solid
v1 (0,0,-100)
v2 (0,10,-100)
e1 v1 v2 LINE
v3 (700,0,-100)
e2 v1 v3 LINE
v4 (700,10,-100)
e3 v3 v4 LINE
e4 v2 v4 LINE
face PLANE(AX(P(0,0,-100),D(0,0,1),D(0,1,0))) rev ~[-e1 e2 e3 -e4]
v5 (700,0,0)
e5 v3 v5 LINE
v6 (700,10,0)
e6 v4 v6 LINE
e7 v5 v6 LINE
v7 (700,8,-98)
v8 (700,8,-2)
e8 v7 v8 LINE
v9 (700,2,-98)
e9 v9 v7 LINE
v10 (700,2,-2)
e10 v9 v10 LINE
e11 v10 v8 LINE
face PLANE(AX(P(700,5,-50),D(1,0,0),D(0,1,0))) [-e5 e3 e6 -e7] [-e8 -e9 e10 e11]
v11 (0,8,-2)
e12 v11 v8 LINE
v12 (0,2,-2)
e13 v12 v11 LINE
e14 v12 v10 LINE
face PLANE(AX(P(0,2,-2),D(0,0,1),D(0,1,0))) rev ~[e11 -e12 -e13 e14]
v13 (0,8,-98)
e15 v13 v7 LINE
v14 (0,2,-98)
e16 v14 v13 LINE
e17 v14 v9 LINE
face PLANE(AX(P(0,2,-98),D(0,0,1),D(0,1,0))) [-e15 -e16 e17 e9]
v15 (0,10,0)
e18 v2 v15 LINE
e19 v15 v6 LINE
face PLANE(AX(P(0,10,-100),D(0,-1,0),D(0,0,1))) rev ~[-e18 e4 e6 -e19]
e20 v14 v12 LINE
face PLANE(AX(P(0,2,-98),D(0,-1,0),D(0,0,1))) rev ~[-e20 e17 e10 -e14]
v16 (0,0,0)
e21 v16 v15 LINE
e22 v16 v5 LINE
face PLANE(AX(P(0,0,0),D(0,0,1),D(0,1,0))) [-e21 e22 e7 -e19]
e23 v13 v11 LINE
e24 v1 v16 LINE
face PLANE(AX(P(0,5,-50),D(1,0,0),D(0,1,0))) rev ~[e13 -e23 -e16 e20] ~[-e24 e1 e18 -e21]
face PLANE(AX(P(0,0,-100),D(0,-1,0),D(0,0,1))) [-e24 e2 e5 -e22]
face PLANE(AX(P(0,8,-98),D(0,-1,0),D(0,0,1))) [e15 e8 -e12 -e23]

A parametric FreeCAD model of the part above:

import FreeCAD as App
import Part
import Sketcher

V = App.Vector

doc = App.newDocument("Part")
body = doc.addObject("PartDesign::Body", "Body")

sketch1 = body.newObject("Sketcher::SketchObject", "Sketch")
sketch1.AttachmentSupport = (doc.getObject("YZ_Plane"), [""])
sketch1.MapMode = "FlatFace"
sketch1.addGeometry(Part.LineSegment(V(0, 0, 0), V(0, -100, 0)), False)
sketch1.addGeometry(Part.LineSegment(V(0, -100, 0), V(10, -100, 0)), False)
sketch1.addGeometry(Part.LineSegment(V(10, -100, 0), V(10, 0, 0)), False)
sketch1.addGeometry(Part.LineSegment(V(10, 0, 0), V(0, 0, 0)), False)
sketch1.addGeometry(Part.LineSegment(V(8, -98, 0), V(2, -98, 0)), False)
sketch1.addGeometry(Part.LineSegment(V(2, -98, 0), V(2, -2, 0)), False)
sketch1.addGeometry(Part.LineSegment(V(2, -2, 0), V(8, -2, 0)), False)
sketch1.addGeometry(Part.LineSegment(V(8, -2, 0), V(8, -98, 0)), False)
sketch1.addConstraint(Sketcher.Constraint("Coincident", 0, 2, 1, 1))
sketch1.addConstraint(Sketcher.Constraint("Coincident", 1, 2, 2, 1))
sketch1.addConstraint(Sketcher.Constraint("Coincident", 2, 2, 3, 1))
sketch1.addConstraint(Sketcher.Constraint("Coincident", 3, 2, 0, 1))
sketch1.addConstraint(Sketcher.Constraint("Coincident", 4, 2, 5, 1))
sketch1.addConstraint(Sketcher.Constraint("Coincident", 5, 2, 6, 1))
sketch1.addConstraint(Sketcher.Constraint("Coincident", 6, 2, 7, 1))
sketch1.addConstraint(Sketcher.Constraint("Coincident", 7, 2, 4, 1))
sketch1.addConstraint(Sketcher.Constraint("Vertical", 0))
sketch1.addConstraint(Sketcher.Constraint("Horizontal", 1))
sketch1.addConstraint(Sketcher.Constraint("Vertical", 2))
sketch1.addConstraint(Sketcher.Constraint("Horizontal", 3))
sketch1.addConstraint(Sketcher.Constraint("Horizontal", 4))
sketch1.addConstraint(Sketcher.Constraint("Vertical", 5))
sketch1.addConstraint(Sketcher.Constraint("Horizontal", 6))
sketch1.addConstraint(Sketcher.Constraint("Vertical", 7))
sketch1.addConstraint(Sketcher.Constraint("Coincident", 3, 2, -1, 1))
sketch1.addConstraint(Sketcher.Constraint("DistanceX", 1, 1, 1, 2, 10.0))
sketch1.addConstraint(Sketcher.Constraint("DistanceX", 4, 2, 4, 1, 6.0))
sketch1.addConstraint(Sketcher.Constraint("DistanceY", 0, 2, 0, 1, 100.0))
sketch1.addConstraint(Sketcher.Constraint("DistanceY", 5, 1, 5, 2, 96.0))
sketch1.addConstraint(Sketcher.Constraint("DistanceX", -1, 1, 4, 2, 2.0))
sketch1.addConstraint(Sketcher.Constraint("DistanceY", 4, 2, -1, 1, 98.0))
pad1 = body.newObject("PartDesign::Pad", "Pad")
pad1.Profile = sketch1
pad1.Length = 700

doc.recompute()
